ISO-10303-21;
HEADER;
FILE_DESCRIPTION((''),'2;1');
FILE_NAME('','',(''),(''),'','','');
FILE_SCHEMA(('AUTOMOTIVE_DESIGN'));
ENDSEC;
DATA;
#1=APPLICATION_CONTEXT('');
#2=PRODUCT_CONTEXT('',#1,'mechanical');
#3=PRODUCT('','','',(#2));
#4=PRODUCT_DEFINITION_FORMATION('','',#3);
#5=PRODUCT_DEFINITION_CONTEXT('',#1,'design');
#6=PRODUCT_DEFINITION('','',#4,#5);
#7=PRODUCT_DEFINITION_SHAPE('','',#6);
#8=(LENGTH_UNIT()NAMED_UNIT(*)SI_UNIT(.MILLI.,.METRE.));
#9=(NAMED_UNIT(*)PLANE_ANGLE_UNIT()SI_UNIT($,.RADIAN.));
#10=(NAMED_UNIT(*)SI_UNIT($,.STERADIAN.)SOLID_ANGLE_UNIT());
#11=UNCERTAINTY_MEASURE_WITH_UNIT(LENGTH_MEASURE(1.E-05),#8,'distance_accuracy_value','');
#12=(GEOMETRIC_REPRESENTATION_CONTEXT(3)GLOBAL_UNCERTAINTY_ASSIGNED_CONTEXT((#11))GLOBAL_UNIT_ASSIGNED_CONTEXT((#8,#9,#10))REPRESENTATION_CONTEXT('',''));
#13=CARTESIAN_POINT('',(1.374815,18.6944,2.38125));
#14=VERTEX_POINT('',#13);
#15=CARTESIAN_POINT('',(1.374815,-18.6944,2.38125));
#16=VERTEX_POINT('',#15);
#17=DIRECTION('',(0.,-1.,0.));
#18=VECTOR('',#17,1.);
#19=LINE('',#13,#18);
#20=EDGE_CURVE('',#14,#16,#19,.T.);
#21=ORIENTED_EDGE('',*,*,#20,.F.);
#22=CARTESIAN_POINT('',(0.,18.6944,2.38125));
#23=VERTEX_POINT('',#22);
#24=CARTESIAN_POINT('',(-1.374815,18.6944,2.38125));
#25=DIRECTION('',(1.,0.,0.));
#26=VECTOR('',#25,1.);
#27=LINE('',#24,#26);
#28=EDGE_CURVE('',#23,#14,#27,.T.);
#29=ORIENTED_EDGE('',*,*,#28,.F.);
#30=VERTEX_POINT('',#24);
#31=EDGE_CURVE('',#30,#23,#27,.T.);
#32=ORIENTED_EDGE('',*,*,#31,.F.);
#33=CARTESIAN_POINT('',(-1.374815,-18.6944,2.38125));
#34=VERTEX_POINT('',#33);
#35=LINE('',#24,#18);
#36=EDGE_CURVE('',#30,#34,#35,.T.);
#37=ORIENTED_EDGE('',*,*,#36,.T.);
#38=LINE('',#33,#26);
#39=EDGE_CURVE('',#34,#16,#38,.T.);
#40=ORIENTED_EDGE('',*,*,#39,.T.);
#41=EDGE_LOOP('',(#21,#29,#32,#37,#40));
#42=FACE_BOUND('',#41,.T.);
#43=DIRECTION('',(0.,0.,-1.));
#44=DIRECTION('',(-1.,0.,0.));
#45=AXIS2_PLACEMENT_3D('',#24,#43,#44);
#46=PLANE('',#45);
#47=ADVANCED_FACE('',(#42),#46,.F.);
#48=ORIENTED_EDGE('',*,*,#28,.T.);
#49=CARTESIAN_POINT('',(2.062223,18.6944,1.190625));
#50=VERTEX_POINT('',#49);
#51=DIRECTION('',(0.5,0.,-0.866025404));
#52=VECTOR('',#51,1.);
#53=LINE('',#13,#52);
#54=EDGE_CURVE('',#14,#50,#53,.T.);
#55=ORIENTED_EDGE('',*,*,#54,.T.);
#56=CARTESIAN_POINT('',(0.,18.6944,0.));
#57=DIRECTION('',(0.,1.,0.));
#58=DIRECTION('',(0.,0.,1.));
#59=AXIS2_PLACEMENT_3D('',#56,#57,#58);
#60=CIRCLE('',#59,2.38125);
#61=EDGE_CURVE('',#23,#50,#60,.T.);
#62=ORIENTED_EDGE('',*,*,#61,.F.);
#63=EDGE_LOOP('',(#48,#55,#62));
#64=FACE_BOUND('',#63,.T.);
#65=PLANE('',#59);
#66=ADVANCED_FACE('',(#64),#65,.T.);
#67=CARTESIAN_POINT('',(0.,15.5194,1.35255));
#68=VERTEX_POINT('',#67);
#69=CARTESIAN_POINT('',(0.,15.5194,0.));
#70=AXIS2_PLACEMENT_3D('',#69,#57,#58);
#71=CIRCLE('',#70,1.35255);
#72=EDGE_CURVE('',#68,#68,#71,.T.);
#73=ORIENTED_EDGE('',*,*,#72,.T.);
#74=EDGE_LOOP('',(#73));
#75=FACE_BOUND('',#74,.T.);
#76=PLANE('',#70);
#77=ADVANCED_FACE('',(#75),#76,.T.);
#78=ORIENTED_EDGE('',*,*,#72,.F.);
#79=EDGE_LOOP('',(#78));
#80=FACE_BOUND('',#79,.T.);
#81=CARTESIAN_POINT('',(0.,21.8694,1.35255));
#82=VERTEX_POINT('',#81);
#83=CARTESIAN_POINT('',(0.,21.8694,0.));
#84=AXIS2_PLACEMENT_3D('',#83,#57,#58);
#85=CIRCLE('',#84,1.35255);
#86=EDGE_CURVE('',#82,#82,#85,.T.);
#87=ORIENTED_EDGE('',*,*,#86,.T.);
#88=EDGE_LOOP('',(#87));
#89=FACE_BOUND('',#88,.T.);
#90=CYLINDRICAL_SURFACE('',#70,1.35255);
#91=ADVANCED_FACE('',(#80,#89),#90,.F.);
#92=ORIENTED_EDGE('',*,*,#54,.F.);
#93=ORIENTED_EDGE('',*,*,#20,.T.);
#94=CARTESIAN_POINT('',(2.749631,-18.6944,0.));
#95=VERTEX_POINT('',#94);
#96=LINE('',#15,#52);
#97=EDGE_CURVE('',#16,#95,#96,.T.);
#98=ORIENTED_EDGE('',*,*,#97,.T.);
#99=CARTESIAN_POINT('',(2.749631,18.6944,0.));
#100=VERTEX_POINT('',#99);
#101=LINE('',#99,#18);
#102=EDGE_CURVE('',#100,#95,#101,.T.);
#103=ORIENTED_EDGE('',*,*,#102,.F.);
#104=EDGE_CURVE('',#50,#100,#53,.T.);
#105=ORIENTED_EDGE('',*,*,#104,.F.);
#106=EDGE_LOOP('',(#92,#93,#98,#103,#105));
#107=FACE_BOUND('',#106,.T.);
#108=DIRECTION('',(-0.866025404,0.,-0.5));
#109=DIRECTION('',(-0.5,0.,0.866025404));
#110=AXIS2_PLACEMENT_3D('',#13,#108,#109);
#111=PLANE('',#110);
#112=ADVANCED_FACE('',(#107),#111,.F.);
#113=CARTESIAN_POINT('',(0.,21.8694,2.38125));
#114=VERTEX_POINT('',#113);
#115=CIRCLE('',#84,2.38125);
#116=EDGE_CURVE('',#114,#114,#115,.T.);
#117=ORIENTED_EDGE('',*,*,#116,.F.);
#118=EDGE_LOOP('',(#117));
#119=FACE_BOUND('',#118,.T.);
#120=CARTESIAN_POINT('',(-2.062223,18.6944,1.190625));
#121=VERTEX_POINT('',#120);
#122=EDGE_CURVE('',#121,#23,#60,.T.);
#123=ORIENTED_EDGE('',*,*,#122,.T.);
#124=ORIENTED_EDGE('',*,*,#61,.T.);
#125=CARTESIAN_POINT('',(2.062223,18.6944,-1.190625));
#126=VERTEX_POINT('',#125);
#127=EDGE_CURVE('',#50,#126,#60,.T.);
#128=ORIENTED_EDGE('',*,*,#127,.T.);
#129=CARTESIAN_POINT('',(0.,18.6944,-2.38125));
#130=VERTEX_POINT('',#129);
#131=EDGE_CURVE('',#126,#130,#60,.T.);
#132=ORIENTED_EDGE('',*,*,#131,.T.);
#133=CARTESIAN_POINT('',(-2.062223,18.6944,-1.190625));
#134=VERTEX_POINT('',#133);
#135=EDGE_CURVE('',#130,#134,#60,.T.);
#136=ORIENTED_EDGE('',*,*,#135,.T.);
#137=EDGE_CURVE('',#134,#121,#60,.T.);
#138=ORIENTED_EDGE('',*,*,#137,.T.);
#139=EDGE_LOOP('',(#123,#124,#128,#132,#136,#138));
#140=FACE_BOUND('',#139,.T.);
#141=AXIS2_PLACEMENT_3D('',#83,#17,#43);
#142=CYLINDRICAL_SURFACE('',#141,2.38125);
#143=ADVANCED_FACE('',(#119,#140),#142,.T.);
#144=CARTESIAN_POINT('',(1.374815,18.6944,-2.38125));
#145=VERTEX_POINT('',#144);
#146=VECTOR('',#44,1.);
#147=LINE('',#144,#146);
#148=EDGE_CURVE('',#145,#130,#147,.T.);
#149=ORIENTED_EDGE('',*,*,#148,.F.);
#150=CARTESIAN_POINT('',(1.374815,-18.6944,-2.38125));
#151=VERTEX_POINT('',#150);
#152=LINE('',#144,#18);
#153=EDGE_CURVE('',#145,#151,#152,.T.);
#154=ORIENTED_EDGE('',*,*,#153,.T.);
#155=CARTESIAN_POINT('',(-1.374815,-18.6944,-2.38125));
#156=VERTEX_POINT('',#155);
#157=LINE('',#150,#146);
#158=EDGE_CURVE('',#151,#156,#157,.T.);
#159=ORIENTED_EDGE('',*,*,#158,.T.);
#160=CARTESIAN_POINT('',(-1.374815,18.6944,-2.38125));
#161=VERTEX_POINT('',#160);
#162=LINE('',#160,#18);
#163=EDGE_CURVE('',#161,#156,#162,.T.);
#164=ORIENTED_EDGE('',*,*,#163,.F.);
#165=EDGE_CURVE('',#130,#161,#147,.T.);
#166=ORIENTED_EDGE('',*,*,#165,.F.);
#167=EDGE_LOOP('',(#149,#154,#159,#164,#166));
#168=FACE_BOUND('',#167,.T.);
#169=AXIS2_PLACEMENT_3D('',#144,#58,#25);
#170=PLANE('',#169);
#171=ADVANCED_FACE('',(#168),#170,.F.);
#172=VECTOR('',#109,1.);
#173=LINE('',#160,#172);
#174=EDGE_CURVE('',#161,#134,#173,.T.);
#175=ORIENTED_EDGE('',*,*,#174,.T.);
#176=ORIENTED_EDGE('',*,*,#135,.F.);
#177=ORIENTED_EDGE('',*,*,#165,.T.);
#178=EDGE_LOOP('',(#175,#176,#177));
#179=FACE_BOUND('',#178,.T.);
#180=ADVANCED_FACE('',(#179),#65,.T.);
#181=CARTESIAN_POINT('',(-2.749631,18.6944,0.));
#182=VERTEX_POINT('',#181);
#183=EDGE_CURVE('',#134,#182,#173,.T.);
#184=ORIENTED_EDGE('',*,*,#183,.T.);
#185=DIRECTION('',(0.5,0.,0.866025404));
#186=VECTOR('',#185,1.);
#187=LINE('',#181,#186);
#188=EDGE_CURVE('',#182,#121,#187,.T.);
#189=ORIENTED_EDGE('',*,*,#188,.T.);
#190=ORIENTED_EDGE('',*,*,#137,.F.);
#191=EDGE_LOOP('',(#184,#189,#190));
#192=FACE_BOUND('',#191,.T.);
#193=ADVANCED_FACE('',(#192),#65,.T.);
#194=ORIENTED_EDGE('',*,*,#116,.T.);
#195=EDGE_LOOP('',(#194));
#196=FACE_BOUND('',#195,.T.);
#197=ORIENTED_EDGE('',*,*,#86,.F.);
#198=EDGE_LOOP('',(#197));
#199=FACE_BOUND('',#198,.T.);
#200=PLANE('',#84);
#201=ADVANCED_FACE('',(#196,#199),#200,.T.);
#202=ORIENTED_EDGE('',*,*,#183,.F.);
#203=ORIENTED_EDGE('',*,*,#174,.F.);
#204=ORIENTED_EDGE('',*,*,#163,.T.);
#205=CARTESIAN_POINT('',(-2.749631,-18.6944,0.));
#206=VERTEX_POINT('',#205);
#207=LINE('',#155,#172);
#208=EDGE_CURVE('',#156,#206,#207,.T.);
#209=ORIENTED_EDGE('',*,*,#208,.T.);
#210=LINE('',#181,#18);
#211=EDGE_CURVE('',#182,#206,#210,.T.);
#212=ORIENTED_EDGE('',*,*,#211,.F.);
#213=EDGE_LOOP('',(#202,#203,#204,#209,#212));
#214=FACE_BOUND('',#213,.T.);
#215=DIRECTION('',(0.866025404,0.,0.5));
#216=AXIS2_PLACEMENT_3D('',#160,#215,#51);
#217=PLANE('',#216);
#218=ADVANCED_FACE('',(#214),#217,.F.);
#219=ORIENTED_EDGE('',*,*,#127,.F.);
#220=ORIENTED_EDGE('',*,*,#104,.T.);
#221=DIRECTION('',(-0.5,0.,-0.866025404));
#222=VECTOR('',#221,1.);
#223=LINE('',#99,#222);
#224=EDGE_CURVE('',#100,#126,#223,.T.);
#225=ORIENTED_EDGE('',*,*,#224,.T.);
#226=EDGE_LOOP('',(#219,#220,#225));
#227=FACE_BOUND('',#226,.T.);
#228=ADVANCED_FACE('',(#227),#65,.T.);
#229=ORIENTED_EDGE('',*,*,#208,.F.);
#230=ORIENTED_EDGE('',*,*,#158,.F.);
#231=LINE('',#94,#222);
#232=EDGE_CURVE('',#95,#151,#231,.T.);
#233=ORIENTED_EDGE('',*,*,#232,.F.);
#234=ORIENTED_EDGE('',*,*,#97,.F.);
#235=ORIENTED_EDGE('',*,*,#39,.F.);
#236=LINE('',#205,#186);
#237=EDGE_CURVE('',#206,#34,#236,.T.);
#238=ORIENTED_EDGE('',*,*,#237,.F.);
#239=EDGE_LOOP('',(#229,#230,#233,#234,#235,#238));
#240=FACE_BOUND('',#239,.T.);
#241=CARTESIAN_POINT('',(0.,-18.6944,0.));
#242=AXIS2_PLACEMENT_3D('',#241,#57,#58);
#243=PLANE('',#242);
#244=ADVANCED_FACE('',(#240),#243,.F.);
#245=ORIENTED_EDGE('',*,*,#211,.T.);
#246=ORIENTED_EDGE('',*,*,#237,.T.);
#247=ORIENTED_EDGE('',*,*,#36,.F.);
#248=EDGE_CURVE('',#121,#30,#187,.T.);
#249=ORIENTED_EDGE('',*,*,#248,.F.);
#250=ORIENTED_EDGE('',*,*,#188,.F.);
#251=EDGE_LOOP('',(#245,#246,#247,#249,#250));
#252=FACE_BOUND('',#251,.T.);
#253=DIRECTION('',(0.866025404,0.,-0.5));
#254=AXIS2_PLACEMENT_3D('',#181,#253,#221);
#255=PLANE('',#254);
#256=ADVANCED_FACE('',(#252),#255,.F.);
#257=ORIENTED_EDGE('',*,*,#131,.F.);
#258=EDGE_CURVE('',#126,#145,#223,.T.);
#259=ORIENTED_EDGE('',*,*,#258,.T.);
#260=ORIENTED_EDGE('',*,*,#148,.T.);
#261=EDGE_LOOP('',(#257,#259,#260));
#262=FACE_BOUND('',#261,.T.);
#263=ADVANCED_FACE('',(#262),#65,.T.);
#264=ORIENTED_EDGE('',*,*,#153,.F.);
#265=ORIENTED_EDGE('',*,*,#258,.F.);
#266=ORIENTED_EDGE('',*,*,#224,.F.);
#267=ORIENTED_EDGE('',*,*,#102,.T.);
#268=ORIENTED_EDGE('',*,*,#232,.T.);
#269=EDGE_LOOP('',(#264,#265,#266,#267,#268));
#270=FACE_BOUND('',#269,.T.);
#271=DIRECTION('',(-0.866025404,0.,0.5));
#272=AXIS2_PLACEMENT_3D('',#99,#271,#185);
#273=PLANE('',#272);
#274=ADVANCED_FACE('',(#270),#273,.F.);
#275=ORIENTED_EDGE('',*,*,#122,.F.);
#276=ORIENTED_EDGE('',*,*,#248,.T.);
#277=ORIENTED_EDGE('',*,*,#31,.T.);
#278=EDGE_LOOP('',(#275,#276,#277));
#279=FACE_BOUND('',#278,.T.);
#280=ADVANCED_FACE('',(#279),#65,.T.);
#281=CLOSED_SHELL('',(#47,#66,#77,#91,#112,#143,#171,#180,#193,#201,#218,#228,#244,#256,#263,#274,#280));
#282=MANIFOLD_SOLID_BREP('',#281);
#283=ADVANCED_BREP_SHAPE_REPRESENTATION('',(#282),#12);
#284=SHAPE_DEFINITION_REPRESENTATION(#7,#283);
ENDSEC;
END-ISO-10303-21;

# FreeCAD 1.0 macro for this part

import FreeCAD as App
import Part
import Sketcher
Q = App.Units.Quantity


def add_polygon(sketch, points):
    """Adds a closed chain of lines whose ends are joined by coincident constraints."""
    first, n = sketch.GeometryCount, len(points)
    for a, b in zip(points, points[1:] + points[:1]):
        sketch.addGeometry(Part.LineSegment(App.Vector(*a, 0), App.Vector(*b, 0)), False)
    for i in range(n):
        sketch.addConstraint(Sketcher.Constraint("Coincident", first + i, 2, first + (i + 1) % n, 1))

doc = App.newDocument("Part")
params = doc.addObject("Spreadsheet::Sheet", "Params")
for row, (alias, value) in enumerate([
    ("pad1_length", "1.472 in"),
    ("sketch2_diameter", "0.1875 in"),
    ("pad2_length", "0.125 in"),
    ("pocket1_length", "0.25 in"),
], start=1):
    params.set(f"A{row}", alias)
    params.set(f"B{row}", "=" + value)
    params.setAlias(f"B{row}", alias)

body = doc.addObject("PartDesign::Body", "Body")

# Sketch on XZ plane
sketch1 = body.newObject("Sketcher::SketchObject", "Sketch")
sketch1.AttachmentSupport = (doc.getObject("XZ_Plane"), [""])
sketch1.MapMode = "FlatFace"
add_polygon(sketch1, [(1.4, 2.4), (2.7, 0), (1.4, -2.4), (-1.4, -2.4), (-2.7, 0), (-1.4, 2.4)])  # lines 0-5
sketch1.addConstraint(Sketcher.Constraint("Horizontal", 2))
sketch1.addConstraint(Sketcher.Constraint("Horizontal", 5))
sketch1.addConstraint(Sketcher.Constraint("Symmetric", 0, 2, 3, 2, -1, 1))
sketch1.addConstraint(Sketcher.Constraint("Symmetric", 1, 2, 4, 2, -1, 1))
sketch1.addConstraint(Sketcher.Constraint("PointOnObject", 0, 2, -1))
sketch1.addConstraint(Sketcher.Constraint("Parallel", 0, 3))
sketch1.addConstraint(Sketcher.Constraint("Vertical", 2, 2, 4, 2))
sketch1.addConstraint(Sketcher.Constraint("Angle", 0, Q("-60 deg")))
sketch1.addConstraint(Sketcher.Constraint("DistanceY", 1, 2, -1, 1, Q("0.09375 in")))
sketch1.addConstraint(Sketcher.Constraint("DistanceX", 2, 2, 2, 1, 2.749631))
pad1 = body.newObject("PartDesign::Pad", "Pad")
pad1.Profile = sketch1
pad1.setExpression("Length", "Params.pad1_length")
pad1.Midplane = True

# Sketch on XZ plane
sketch2 = body.newObject("Sketcher::SketchObject", "Sketch001")
sketch2.AttachmentSupport = (doc.getObject("XZ_Plane"), [""])
sketch2.MapMode = "FlatFace"
sketch2.AttachmentOffset = App.Placement(App.Vector(0, 0, -0.736 * 25.4), App.Rotation())
sketch2.addGeometry(Part.Circle(App.Vector(0, 0, 0), App.Vector(0, 0, 1), 2.4), False)
sketch2.addConstraint(Sketcher.Constraint("Coincident", 0, 3, -1, 1))
sketch2.addConstraint(Sketcher.Constraint("Diameter", 0, Q("0.1875 in")))
sketch2.setExpression("Constraints[1]", "Params.sketch2_diameter")
pad2 = body.newObject("PartDesign::Pad", "Pad001")
pad2.Profile = sketch2
pad2.setExpression("Length", "Params.pad2_length")
pad2.Reversed = True

# Sketch on XZ plane
sketch3 = body.newObject("Sketcher::SketchObject", "Sketch002")
sketch3.AttachmentSupport = (doc.getObject("XZ_Plane"), [""])
sketch3.MapMode = "FlatFace"
sketch3.AttachmentOffset = App.Placement(App.Vector(0, 0, -0.861 * 25.4), App.Rotation())
sketch3.addGeometry(Part.Circle(App.Vector(0, 0, 0), App.Vector(0, 0, 1), 1.4), False)
sketch3.addConstraint(Sketcher.Constraint("Coincident", 0, 3, -1, 1))
sketch3.addConstraint(Sketcher.Constraint("Diameter", 0, Q("0.1065 in")))
pocket1 = body.newObject("PartDesign::Pocket", "Pocket")
pocket1.Profile = sketch3
pocket1.setExpression("Length", "Params.pocket1_length")
pocket1.Reversed = True

doc.recompute()
